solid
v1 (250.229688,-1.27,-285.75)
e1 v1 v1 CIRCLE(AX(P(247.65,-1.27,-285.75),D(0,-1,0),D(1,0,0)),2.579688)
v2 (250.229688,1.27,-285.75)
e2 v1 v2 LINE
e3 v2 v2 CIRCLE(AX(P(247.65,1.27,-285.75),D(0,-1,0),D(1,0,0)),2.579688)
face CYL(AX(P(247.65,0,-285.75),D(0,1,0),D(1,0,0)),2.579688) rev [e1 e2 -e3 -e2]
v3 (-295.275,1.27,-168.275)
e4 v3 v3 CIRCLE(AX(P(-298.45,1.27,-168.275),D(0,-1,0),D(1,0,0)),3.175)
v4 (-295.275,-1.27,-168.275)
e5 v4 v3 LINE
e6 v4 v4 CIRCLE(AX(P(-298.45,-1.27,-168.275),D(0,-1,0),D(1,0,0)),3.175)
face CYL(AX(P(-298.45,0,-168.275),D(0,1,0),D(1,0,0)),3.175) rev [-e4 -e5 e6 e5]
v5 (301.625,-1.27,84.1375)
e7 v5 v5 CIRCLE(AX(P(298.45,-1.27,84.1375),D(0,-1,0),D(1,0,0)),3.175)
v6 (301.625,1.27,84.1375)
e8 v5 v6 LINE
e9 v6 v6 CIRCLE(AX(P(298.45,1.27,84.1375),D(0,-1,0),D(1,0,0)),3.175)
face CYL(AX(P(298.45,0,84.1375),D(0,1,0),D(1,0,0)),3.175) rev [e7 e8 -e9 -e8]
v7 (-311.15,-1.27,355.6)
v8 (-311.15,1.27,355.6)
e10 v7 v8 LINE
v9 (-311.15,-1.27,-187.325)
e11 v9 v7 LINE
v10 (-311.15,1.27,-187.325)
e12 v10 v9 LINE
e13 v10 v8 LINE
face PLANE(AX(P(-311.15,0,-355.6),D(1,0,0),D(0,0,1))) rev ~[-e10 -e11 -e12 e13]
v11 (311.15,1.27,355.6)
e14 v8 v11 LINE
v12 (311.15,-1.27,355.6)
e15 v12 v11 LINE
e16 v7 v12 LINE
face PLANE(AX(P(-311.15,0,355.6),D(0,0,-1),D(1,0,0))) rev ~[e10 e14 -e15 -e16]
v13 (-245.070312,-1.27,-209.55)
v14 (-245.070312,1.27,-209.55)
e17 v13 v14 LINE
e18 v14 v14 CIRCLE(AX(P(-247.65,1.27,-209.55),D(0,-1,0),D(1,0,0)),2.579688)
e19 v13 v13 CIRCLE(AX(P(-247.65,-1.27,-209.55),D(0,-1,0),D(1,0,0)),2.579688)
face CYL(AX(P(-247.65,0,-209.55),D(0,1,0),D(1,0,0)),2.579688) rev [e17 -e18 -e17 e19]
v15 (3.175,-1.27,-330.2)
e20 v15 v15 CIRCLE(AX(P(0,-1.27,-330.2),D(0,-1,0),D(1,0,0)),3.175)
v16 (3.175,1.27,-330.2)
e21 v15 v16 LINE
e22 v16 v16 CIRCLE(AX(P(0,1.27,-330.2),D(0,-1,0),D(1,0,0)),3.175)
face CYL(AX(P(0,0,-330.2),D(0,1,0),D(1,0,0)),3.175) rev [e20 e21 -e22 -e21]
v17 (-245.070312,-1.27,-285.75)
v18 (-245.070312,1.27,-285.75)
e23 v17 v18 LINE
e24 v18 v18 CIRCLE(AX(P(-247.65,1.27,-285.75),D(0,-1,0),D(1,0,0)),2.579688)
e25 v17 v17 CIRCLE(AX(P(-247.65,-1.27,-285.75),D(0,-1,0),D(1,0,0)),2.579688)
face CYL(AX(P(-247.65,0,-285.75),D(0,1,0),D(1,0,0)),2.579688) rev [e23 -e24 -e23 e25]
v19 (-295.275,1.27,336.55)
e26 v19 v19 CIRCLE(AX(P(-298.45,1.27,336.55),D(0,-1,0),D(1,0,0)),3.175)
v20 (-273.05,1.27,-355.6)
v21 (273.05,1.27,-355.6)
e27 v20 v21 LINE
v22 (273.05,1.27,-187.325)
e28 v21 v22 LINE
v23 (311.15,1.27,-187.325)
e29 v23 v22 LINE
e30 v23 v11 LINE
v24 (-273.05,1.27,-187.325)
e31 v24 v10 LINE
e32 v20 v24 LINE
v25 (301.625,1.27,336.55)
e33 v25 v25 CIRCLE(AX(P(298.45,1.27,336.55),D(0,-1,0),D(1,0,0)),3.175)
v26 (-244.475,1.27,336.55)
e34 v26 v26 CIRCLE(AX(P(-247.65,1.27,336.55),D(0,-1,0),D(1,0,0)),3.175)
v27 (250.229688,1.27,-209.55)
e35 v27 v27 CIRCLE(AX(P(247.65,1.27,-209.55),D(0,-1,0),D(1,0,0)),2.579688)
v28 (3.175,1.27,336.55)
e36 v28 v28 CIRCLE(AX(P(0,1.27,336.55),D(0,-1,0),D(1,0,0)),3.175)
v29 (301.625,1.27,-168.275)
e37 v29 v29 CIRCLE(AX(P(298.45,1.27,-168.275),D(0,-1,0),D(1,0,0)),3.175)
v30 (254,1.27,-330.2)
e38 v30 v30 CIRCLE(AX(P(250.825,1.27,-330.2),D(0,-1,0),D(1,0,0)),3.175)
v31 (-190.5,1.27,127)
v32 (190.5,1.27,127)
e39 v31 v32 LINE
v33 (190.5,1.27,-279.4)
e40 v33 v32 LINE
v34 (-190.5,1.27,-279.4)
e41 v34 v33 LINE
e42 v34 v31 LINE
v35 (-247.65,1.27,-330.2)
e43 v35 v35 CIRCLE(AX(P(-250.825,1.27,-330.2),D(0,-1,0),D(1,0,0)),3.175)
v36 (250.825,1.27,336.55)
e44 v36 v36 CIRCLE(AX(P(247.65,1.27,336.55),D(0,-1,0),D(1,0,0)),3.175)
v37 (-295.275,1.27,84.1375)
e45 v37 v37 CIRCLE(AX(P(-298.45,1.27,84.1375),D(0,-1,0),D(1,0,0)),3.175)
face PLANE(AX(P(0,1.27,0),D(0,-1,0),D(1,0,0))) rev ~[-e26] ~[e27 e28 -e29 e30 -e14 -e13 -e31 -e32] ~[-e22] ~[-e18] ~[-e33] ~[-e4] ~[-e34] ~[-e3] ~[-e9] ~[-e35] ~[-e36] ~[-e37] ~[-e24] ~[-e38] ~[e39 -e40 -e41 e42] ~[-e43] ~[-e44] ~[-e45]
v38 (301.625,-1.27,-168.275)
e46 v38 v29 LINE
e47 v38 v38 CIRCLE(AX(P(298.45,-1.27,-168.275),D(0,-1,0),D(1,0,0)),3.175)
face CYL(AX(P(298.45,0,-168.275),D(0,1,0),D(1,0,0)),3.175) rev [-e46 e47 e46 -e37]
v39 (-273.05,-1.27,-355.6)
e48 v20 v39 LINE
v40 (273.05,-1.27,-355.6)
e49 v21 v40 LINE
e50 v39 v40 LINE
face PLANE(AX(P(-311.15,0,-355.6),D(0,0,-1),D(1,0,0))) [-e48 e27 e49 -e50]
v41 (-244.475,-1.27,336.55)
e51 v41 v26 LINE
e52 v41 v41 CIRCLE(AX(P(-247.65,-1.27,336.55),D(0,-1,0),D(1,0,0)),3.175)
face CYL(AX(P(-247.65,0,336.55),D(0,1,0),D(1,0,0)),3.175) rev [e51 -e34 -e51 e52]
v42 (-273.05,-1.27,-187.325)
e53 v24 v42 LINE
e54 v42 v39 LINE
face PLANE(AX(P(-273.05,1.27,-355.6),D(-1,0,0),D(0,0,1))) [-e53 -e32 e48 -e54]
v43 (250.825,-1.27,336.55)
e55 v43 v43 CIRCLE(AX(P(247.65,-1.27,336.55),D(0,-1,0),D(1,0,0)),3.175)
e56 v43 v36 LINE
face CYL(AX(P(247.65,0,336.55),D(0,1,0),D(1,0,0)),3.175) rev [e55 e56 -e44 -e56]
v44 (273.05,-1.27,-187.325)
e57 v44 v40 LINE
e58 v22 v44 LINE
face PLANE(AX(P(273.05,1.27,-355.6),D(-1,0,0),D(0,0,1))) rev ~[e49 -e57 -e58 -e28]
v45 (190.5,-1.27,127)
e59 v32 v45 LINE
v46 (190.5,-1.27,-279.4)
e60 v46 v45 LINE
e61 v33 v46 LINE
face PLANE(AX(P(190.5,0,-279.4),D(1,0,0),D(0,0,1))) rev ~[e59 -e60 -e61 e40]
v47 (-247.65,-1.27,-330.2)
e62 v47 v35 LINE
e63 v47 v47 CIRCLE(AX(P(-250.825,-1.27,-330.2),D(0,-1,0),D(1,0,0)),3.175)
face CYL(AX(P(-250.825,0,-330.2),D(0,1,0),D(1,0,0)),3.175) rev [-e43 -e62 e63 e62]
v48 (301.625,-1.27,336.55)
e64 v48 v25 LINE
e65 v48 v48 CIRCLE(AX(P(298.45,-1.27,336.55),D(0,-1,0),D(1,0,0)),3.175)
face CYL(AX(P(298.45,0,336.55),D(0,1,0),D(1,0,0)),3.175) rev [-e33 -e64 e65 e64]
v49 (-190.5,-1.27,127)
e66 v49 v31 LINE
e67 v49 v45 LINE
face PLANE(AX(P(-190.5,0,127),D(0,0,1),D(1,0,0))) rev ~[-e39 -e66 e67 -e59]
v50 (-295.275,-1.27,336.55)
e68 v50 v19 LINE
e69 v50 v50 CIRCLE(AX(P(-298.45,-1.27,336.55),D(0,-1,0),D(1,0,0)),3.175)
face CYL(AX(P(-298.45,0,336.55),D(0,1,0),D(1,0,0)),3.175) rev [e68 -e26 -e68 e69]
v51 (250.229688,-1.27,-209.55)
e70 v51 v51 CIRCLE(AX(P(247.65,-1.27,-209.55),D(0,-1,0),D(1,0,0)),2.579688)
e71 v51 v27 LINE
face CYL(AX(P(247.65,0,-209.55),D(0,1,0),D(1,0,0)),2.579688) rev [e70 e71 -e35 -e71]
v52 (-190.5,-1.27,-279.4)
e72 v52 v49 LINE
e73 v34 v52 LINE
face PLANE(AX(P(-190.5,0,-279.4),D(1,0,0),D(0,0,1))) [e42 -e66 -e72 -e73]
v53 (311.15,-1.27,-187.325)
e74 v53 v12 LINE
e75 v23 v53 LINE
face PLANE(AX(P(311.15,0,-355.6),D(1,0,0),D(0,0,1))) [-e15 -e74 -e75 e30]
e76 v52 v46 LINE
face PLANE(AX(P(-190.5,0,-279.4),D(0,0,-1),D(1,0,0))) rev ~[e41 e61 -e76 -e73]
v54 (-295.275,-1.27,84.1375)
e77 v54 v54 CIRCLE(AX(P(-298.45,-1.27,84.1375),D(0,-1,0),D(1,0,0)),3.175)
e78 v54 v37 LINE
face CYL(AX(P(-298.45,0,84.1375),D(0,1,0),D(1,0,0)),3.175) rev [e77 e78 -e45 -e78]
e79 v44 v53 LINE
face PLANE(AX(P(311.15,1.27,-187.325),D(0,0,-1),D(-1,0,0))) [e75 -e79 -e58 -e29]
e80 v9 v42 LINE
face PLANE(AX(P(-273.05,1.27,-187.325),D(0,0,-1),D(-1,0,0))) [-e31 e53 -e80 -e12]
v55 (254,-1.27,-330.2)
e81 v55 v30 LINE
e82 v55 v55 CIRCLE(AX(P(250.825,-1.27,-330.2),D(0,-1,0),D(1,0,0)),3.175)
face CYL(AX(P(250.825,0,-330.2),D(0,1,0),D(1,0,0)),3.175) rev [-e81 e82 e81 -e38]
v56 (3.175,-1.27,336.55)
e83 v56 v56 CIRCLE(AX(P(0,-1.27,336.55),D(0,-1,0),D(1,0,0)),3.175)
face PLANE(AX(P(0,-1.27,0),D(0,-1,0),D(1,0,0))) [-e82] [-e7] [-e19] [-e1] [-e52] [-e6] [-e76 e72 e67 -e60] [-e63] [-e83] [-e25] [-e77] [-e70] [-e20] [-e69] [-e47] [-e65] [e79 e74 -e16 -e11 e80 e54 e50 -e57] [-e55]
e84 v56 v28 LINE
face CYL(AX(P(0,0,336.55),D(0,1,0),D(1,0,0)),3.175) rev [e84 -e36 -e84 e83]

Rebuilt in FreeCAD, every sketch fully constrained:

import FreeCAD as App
import Part
import Sketcher

V = App.Vector
Q = App.Units.Quantity

doc = App.newDocument("Part")
params = doc.addObject("Spreadsheet::Sheet", "Params")
for row, (alias, value) in enumerate([
    ("sketch1_diameter", "0.25 in"),
    ("sketch1_width", "15 in"),
    ("sketch1_height", "28 in"),
    ("sketch1_height2", "16 in"),
    ("sketch1_diameter2", "0.203125 in"),
    ("pad1_length", "0.1 in"),
    ("sketch2_width", "1.5 in"),
    ("sketch2_height", "6.625 in"),
], start=1):
    params.set(f"A{row}", alias)
    params.set(f"B{row}", "=" + value)
    params.setAlias(f"B{row}", alias)

body = doc.addObject("PartDesign::Body", "Body")

# Sketch on XZ plane
sketch1 = body.newObject("Sketcher::SketchObject", "Sketch")
sketch1.AttachmentSupport = (doc.getObject("XZ_Plane"), [""])
sketch1.MapMode = "FlatFace"
sketch1.addGeometry([
    Part.LineSegment(V(-311.15, 355.6, 0), V(-311.15, -355.6, 0)),  # 0
    Part.LineSegment(V(-311.15, -355.6, 0), V(311.15, -355.6, 0)),  # 1
    Part.LineSegment(V(311.15, -355.6, 0), V(311.15, 355.6, 0)),  # 2
    Part.LineSegment(V(311.15, 355.6, 0), V(-311.15, 355.6, 0)),  # 3
    Part.Circle(V(-250.825, -330.2, 0), V(0, 0, 1), 3.175),  # 4
    Part.Circle(V(-247.65, -285.75, 0), V(0, 0, 1), 2.579688),  # 5
    Part.Circle(V(-247.65, -209.55, 0), V(0, 0, 1), 2.579688),  # 6
    Part.Circle(V(-298.45, -168.275, 0), V(0, 0, 1), 3.175),  # 7
    Part.Circle(V(0, -330.2, 0), V(0, 0, 1), 3.175),  # 8
    Part.Circle(V(250.825, -330.2, 0), V(0, 0, 1), 3.175),  # 9
    Part.Circle(V(247.65, -285.75, 0), V(0, 0, 1), 2.579688),  # 10
    Part.Circle(V(247.65, -209.55, 0), V(0, 0, 1), 2.579688),  # 11
    Part.Circle(V(298.45, -168.275, 0), V(0, 0, 1), 3.175),  # 12
    Part.LineSegment(V(190.5, -279.4, 0), V(-190.5, -279.4, 0)),  # 13
    Part.LineSegment(V(-190.5, -279.4, 0), V(-190.5, 127, 0)),  # 14
    Part.LineSegment(V(-190.5, 127, 0), V(190.5, 127, 0)),  # 15
    Part.LineSegment(V(190.5, 127, 0), V(190.5, -279.4, 0)),  # 16
    Part.Circle(V(-298.45, 84.1375, 0), V(0, 0, 1), 3.175),  # 17
    Part.Circle(V(-298.45, 336.55, 0), V(0, 0, 1), 3.175),  # 18
    Part.Circle(V(-247.65, 336.55, 0), V(0, 0, 1), 3.175),  # 19
    Part.Circle(V(298.45, 84.1375, 0), V(0, 0, 1), 3.175),  # 20
    Part.Circle(V(0, 336.55, 0), V(0, 0, 1), 3.175),  # 21
    Part.Circle(V(247.65, 336.55, 0), V(0, 0, 1), 3.175),  # 22
    Part.Circle(V(298.45, 336.55, 0), V(0, 0, 1), 3.175),  # 23
], False)
sketch1.addConstraint([
    Sketcher.Constraint("Coincident", 0, 2, 1, 1),
    Sketcher.Constraint("Coincident", 1, 2, 2, 1),
    Sketcher.Constraint("Coincident", 2, 2, 3, 1),
    Sketcher.Constraint("Coincident", 3, 2, 0, 1),
    Sketcher.Constraint("Coincident", 13, 2, 14, 1),
    Sketcher.Constraint("Coincident", 14, 2, 15, 1),
    Sketcher.Constraint("Coincident", 15, 2, 16, 1),
    Sketcher.Constraint("Coincident", 16, 2, 13, 1),
    Sketcher.Constraint("Vertical", 0),
    Sketcher.Constraint("Horizontal", 1),
    Sketcher.Constraint("Vertical", 2),
    Sketcher.Constraint("Horizontal", 3),
    Sketcher.Constraint("Horizontal", 13),
    Sketcher.Constraint("Vertical", 14),
    Sketcher.Constraint("Horizontal", 15),
    Sketcher.Constraint("Vertical", 16),
    Sketcher.Constraint("Equal", 5, 6),
    Sketcher.Constraint("Equal", 4, 7),
    Sketcher.Constraint("Equal", 7, 8),
    Sketcher.Constraint("Equal", 8, 9),
    Sketcher.Constraint("Equal", 6, 10),
    Sketcher.Constraint("Equal", 10, 11),
    Sketcher.Constraint("Equal", 9, 12),
    Sketcher.Constraint("Equal", 12, 17),
    Sketcher.Constraint("Equal", 17, 18),
    Sketcher.Constraint("Equal", 18, 19),
    Sketcher.Constraint("Equal", 19, 20),
    Sketcher.Constraint("Equal", 20, 21),
    Sketcher.Constraint("Equal", 21, 22),
    Sketcher.Constraint("Equal", 22, 23),
    Sketcher.Constraint("Symmetric", 0, 2, 2, 2, -1, 1),
    Sketcher.Constraint("Symmetric", 4, 3, 9, 3, -2),
    Sketcher.Constraint("Symmetric", 5, 3, 10, 3, -2),
    Sketcher.Constraint("Symmetric", 6, 3, 11, 3, -2),
    Sketcher.Constraint("Symmetric", 7, 3, 12, 3, -2),
    Sketcher.Constraint("Symmetric", 17, 3, 20, 3, -2),
    Sketcher.Constraint("Symmetric", 19, 3, 22, 3, -2),
    Sketcher.Constraint("Symmetric", 18, 3, 23, 3, -2),
    Sketcher.Constraint("PointOnObject", 8, 3, -2),
    Sketcher.Constraint("PointOnObject", 21, 3, -2),
    Sketcher.Constraint("Horizontal", 4, 3, 8, 3),
    Sketcher.Constraint("Horizontal", 18, 3, 19, 3),
    Sketcher.Constraint("Horizontal", 19, 3, 21, 3),
    Sketcher.Constraint("Vertical", 5, 3, 6, 3),
    Sketcher.Constraint("Vertical", 7, 3, 17, 3),
    Sketcher.Constraint("Vertical", 17, 3, 18, 3),
    Sketcher.Constraint("Vertical", 6, 3, 19, 3),
    Sketcher.Constraint("Diameter", 4, Q("0.25 in")),
    Sketcher.Constraint("DistanceX", 13, 2, 13, 1, Q("15 in")),
    Sketcher.Constraint("DistanceY", 0, 2, 0, 1, Q("28 in")),
    Sketcher.Constraint("DistanceY", 14, 1, 14, 2, Q("16 in")),
    Sketcher.Constraint("Diameter", 5, Q("0.203125 in")),
    Sketcher.Constraint("DistanceX", 1, 1, 1, 2, Q("24.5 in")),
    Sketcher.Constraint("DistanceY", 4, 3, -1, 1, Q("13 in")),
    Sketcher.Constraint("DistanceY", 13, 2, -1, 1, Q("11 in")),
    Sketcher.Constraint("DistanceY", 5, 3, 6, 3, Q("3 in")),
    Sketcher.Constraint("DistanceX", 7, 3, 6, 3, Q("2 in")),
    Sketcher.Constraint("DistanceX", 13, 2, -1, 1, Q("7.5 in")),
    Sketcher.Constraint("DistanceX", 5, 3, 10, 3, Q("19.5 in")),
    Sketcher.Constraint("DistanceY", 6, 3, 18, 3, Q("21.5 in")),
    Sketcher.Constraint("DistanceY", 5, 3, -1, 1, Q("11.25 in")),
    Sketcher.Constraint("DistanceX", 4, 3, 9, 3, Q("19.75 in")),
    Sketcher.Constraint("DistanceY", 7, 3, -1, 1, Q("6.625 in")),
    Sketcher.Constraint("DistanceY", -1, 1, 17, 3, Q("3.3125 in")),
])
sketch1.setExpression("Constraints[47]", "Params.sketch1_diameter")
sketch1.setExpression("Constraints[48]", "Params.sketch1_width")
sketch1.setExpression("Constraints[49]", "Params.sketch1_height")
sketch1.setExpression("Constraints[50]", "Params.sketch1_height2")
sketch1.setExpression("Constraints[51]", "Params.sketch1_diameter2")
pad1 = body.newObject("PartDesign::Pad", "Pad")
pad1.Profile = sketch1
pad1.setExpression("Length", "Params.pad1_length")
pad1.Midplane = True

# Sketch on XZ plane
sketch2 = body.newObject("Sketcher::SketchObject", "Sketch001")
sketch2.AttachmentSupport = (doc.getObject("XZ_Plane"), [""])
sketch2.MapMode = "FlatFace"
sketch2.AttachmentOffset = App.Placement(V(0, 0, -0.05 * 25.4), App.Rotation())
sketch2.addGeometry([
    Part.LineSegment(V(311.15, -187.325, 0), V(311.15, -355.6, 0)),  # 0
    Part.LineSegment(V(311.15, -355.6, 0), V(273.05, -355.6, 0)),  # 1
    Part.LineSegment(V(273.05, -355.6, 0), V(273.05, -187.325, 0)),  # 2
    Part.LineSegment(V(273.05, -187.325, 0), V(311.15, -187.325, 0)),  # 3
    Part.LineSegment(V(-273.05, -187.325, 0), V(-273.05, -355.6, 0)),  # 4
    Part.LineSegment(V(-273.05, -355.6, 0), V(-311.15, -355.6, 0)),  # 5
    Part.LineSegment(V(-311.15, -355.6, 0), V(-311.15, -187.325, 0)),  # 6
    Part.LineSegment(V(-311.15, -187.325, 0), V(-273.05, -187.325, 0)),  # 7
], False)
sketch2.addConstraint([
    Sketcher.Constraint("Coincident", 0, 2, 1, 1),
    Sketcher.Constraint("Coincident", 1, 2, 2, 1),
    Sketcher.Constraint("Coincident", 2, 2, 3, 1),
    Sketcher.Constraint("Coincident", 3, 2, 0, 1),
    Sketcher.Constraint("Coincident", 4, 2, 5, 1),
    Sketcher.Constraint("Coincident", 5, 2, 6, 1),
    Sketcher.Constraint("Coincident", 6, 2, 7, 1),
    Sketcher.Constraint("Coincident", 7, 2, 4, 1),
    Sketcher.Constraint("Vertical", 0),
    Sketcher.Constraint("Horizontal", 1),
    Sketcher.Constraint("Vertical", 2),
    Sketcher.Constraint("Horizontal", 3),
    Sketcher.Constraint("Vertical", 4),
    Sketcher.Constraint("Horizontal", 5),
    Sketcher.Constraint("Vertical", 6),
    Sketcher.Constraint("Horizontal", 7),
    Sketcher.Constraint("Symmetric", 1, 2, 4, 2, -2),
    Sketcher.Constraint("Symmetric", 3, 2, 6, 2, -2),
    Sketcher.Constraint("DistanceX", 1, 2, 1, 1, Q("1.5 in")),
    Sketcher.Constraint("DistanceY", 0, 2, -1, 1, Q("14 in")),
    Sketcher.Constraint("DistanceX", 4, 2, 0, 2, Q("23 in")),
    Sketcher.Constraint("DistanceY", 0, 2, 0, 1, Q("6.625 in")),
])
sketch2.setExpression("Constraints[18]", "Params.sketch2_width")
sketch2.setExpression("Constraints[21]", "Params.sketch2_height")
pocket1 = body.newObject("PartDesign::Pocket", "Pocket")
pocket1.Profile = sketch2
pocket1.Type = "ThroughAll"
pocket1.Reversed = True

doc.recompute()
